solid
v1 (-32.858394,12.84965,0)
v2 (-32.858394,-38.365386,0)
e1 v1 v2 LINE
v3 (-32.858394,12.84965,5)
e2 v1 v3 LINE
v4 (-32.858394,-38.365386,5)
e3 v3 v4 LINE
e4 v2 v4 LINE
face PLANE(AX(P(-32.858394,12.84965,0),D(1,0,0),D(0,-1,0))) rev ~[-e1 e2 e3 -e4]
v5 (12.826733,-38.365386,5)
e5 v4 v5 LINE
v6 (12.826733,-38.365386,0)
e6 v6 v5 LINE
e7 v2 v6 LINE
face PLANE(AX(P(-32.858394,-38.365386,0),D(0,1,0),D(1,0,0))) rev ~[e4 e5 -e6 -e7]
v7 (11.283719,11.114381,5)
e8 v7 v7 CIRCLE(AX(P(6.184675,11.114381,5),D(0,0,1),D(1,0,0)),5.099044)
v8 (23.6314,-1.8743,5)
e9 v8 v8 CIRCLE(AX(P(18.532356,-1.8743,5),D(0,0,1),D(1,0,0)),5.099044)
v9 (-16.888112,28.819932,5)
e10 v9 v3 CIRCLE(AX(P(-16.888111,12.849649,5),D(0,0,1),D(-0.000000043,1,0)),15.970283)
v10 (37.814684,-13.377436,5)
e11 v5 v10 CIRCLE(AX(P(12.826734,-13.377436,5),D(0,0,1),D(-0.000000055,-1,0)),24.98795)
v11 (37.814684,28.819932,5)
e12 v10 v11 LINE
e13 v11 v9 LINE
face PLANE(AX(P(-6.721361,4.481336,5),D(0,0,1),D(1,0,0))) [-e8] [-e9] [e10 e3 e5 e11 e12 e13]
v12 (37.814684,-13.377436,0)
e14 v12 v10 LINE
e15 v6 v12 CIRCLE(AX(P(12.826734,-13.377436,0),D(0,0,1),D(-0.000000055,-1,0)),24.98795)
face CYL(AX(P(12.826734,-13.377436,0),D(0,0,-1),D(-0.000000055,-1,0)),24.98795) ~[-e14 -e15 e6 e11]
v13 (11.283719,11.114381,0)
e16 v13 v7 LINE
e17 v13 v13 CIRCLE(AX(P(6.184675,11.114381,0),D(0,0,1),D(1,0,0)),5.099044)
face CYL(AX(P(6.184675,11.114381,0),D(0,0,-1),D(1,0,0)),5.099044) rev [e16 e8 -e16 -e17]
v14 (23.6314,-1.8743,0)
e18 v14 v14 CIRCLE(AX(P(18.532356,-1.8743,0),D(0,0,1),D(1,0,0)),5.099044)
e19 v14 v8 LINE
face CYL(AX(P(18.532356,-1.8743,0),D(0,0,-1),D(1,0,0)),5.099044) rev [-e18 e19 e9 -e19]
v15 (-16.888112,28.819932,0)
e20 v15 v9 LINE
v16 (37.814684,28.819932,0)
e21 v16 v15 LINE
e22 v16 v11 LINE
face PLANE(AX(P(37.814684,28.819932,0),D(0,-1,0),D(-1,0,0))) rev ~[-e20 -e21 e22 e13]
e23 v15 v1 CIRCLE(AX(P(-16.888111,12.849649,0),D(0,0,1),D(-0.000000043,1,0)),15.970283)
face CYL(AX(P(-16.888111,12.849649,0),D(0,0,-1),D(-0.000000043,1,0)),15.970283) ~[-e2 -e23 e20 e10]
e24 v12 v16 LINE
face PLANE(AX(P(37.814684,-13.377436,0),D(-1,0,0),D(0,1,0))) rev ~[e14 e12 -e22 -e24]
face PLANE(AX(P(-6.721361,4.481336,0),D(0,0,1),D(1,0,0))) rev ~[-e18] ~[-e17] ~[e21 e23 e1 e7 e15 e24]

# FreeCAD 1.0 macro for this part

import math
import FreeCAD as App
import Part
import Sketcher
from FreeCAD import Vector

doc = App.newDocument("Part")
params = doc.addObject("Spreadsheet::Sheet", "Params")
for row, (alias, value) in enumerate([
    ("pad1_length", "5 mm"),
], start=1):
    params.set(f"A{row}", alias)
    params.set(f"B{row}", "=" + value)
    params.setAlias(f"B{row}", alias)

body = doc.addObject("PartDesign::Body", "Body")

sketch1 = doc.addObject("Sketcher::SketchObject", "Sketch")
body.addObject(sketch1)
sketch1.AttachmentSupport = (doc.XY_Plane, [""])
sketch1.MapMode = "FlatFace"
sketch1.addGeometry([
    Part.LineSegment(Vector(38, 29, 0), Vector(-17, 29, 0)),
    Part.ArcOfCircle(Part.Circle(Vector(-17, 13, 0), Vector(0, 0, 1), 16), math.radians(90), math.radians(180)),
    Part.LineSegment(Vector(-33, 13, 0), Vector(-33, -38, 0)),
    Part.LineSegment(Vector(-33, -38, 0), Vector(13, -38, 0)),
    Part.ArcOfCircle(Part.Circle(Vector(13, -13, 0), Vector(0, 0, 1), 25), math.radians(-90), math.radians(0)),
    Part.LineSegment(Vector(38, -13, 0), Vector(38, 29, 0)),
    Part.Circle(Vector(19, -2, 0), Vector(0, 0, 1), 5),
    Part.Circle(Vector(6, 11, 0), Vector(0, 0, 1), 5),
], False)
sketch1.addConstraint([
    Sketcher.Constraint("Tangent", 0, 2, 1, 1),
    Sketcher.Constraint("Tangent", 1, 2, 2, 1),
    Sketcher.Constraint("Coincident", 2, 2, 3, 1),
    Sketcher.Constraint("Tangent", 3, 2, 4, 1),
    Sketcher.Constraint("Tangent", 4, 2, 5, 1),
    Sketcher.Constraint("Coincident", 5, 2, 0, 1),
    Sketcher.Constraint("Horizontal", 0),
    Sketcher.Constraint("Vertical", 2),
    Sketcher.Constraint("Horizontal", 3),
    Sketcher.Constraint("Vertical", 5),
    Sketcher.Constraint("Equal", 6, 7),
    Sketcher.Constraint("Radius", 4, 24.98795),
    Sketcher.Constraint("Diameter", 6, 10.198088),
    Sketcher.Constraint("Radius", 1, 15.970283),
    Sketcher.Constraint("DistanceY", 6, 3, -1, 1, 1.8743),
    Sketcher.Constraint("DistanceX", 0, 2, 0, 1, 54.702796),
    Sketcher.Constraint("DistanceY", 2, 2, 2, 1, 51.215036),
    Sketcher.Constraint("DistanceX", 1, 3, -1, 1, 16.888111),
    Sketcher.Constraint("DistanceY", -1, 1, 1, 3, 12.849649),
    Sketcher.Constraint("DistanceY", -1, 1, 7, 3, 11.114381),
    Sketcher.Constraint("DistanceX", 4, 3, 6, 3, 5.705622),
    Sketcher.Constraint("DistanceX", 7, 3, 6, 3, 12.347681),
])
pad1 = doc.addObject("PartDesign::Pad", "Pad")
body.addObject(pad1)
pad1.Profile = sketch1
pad1.setExpression("Length", "Params.pad1_length")

doc.recompute()
